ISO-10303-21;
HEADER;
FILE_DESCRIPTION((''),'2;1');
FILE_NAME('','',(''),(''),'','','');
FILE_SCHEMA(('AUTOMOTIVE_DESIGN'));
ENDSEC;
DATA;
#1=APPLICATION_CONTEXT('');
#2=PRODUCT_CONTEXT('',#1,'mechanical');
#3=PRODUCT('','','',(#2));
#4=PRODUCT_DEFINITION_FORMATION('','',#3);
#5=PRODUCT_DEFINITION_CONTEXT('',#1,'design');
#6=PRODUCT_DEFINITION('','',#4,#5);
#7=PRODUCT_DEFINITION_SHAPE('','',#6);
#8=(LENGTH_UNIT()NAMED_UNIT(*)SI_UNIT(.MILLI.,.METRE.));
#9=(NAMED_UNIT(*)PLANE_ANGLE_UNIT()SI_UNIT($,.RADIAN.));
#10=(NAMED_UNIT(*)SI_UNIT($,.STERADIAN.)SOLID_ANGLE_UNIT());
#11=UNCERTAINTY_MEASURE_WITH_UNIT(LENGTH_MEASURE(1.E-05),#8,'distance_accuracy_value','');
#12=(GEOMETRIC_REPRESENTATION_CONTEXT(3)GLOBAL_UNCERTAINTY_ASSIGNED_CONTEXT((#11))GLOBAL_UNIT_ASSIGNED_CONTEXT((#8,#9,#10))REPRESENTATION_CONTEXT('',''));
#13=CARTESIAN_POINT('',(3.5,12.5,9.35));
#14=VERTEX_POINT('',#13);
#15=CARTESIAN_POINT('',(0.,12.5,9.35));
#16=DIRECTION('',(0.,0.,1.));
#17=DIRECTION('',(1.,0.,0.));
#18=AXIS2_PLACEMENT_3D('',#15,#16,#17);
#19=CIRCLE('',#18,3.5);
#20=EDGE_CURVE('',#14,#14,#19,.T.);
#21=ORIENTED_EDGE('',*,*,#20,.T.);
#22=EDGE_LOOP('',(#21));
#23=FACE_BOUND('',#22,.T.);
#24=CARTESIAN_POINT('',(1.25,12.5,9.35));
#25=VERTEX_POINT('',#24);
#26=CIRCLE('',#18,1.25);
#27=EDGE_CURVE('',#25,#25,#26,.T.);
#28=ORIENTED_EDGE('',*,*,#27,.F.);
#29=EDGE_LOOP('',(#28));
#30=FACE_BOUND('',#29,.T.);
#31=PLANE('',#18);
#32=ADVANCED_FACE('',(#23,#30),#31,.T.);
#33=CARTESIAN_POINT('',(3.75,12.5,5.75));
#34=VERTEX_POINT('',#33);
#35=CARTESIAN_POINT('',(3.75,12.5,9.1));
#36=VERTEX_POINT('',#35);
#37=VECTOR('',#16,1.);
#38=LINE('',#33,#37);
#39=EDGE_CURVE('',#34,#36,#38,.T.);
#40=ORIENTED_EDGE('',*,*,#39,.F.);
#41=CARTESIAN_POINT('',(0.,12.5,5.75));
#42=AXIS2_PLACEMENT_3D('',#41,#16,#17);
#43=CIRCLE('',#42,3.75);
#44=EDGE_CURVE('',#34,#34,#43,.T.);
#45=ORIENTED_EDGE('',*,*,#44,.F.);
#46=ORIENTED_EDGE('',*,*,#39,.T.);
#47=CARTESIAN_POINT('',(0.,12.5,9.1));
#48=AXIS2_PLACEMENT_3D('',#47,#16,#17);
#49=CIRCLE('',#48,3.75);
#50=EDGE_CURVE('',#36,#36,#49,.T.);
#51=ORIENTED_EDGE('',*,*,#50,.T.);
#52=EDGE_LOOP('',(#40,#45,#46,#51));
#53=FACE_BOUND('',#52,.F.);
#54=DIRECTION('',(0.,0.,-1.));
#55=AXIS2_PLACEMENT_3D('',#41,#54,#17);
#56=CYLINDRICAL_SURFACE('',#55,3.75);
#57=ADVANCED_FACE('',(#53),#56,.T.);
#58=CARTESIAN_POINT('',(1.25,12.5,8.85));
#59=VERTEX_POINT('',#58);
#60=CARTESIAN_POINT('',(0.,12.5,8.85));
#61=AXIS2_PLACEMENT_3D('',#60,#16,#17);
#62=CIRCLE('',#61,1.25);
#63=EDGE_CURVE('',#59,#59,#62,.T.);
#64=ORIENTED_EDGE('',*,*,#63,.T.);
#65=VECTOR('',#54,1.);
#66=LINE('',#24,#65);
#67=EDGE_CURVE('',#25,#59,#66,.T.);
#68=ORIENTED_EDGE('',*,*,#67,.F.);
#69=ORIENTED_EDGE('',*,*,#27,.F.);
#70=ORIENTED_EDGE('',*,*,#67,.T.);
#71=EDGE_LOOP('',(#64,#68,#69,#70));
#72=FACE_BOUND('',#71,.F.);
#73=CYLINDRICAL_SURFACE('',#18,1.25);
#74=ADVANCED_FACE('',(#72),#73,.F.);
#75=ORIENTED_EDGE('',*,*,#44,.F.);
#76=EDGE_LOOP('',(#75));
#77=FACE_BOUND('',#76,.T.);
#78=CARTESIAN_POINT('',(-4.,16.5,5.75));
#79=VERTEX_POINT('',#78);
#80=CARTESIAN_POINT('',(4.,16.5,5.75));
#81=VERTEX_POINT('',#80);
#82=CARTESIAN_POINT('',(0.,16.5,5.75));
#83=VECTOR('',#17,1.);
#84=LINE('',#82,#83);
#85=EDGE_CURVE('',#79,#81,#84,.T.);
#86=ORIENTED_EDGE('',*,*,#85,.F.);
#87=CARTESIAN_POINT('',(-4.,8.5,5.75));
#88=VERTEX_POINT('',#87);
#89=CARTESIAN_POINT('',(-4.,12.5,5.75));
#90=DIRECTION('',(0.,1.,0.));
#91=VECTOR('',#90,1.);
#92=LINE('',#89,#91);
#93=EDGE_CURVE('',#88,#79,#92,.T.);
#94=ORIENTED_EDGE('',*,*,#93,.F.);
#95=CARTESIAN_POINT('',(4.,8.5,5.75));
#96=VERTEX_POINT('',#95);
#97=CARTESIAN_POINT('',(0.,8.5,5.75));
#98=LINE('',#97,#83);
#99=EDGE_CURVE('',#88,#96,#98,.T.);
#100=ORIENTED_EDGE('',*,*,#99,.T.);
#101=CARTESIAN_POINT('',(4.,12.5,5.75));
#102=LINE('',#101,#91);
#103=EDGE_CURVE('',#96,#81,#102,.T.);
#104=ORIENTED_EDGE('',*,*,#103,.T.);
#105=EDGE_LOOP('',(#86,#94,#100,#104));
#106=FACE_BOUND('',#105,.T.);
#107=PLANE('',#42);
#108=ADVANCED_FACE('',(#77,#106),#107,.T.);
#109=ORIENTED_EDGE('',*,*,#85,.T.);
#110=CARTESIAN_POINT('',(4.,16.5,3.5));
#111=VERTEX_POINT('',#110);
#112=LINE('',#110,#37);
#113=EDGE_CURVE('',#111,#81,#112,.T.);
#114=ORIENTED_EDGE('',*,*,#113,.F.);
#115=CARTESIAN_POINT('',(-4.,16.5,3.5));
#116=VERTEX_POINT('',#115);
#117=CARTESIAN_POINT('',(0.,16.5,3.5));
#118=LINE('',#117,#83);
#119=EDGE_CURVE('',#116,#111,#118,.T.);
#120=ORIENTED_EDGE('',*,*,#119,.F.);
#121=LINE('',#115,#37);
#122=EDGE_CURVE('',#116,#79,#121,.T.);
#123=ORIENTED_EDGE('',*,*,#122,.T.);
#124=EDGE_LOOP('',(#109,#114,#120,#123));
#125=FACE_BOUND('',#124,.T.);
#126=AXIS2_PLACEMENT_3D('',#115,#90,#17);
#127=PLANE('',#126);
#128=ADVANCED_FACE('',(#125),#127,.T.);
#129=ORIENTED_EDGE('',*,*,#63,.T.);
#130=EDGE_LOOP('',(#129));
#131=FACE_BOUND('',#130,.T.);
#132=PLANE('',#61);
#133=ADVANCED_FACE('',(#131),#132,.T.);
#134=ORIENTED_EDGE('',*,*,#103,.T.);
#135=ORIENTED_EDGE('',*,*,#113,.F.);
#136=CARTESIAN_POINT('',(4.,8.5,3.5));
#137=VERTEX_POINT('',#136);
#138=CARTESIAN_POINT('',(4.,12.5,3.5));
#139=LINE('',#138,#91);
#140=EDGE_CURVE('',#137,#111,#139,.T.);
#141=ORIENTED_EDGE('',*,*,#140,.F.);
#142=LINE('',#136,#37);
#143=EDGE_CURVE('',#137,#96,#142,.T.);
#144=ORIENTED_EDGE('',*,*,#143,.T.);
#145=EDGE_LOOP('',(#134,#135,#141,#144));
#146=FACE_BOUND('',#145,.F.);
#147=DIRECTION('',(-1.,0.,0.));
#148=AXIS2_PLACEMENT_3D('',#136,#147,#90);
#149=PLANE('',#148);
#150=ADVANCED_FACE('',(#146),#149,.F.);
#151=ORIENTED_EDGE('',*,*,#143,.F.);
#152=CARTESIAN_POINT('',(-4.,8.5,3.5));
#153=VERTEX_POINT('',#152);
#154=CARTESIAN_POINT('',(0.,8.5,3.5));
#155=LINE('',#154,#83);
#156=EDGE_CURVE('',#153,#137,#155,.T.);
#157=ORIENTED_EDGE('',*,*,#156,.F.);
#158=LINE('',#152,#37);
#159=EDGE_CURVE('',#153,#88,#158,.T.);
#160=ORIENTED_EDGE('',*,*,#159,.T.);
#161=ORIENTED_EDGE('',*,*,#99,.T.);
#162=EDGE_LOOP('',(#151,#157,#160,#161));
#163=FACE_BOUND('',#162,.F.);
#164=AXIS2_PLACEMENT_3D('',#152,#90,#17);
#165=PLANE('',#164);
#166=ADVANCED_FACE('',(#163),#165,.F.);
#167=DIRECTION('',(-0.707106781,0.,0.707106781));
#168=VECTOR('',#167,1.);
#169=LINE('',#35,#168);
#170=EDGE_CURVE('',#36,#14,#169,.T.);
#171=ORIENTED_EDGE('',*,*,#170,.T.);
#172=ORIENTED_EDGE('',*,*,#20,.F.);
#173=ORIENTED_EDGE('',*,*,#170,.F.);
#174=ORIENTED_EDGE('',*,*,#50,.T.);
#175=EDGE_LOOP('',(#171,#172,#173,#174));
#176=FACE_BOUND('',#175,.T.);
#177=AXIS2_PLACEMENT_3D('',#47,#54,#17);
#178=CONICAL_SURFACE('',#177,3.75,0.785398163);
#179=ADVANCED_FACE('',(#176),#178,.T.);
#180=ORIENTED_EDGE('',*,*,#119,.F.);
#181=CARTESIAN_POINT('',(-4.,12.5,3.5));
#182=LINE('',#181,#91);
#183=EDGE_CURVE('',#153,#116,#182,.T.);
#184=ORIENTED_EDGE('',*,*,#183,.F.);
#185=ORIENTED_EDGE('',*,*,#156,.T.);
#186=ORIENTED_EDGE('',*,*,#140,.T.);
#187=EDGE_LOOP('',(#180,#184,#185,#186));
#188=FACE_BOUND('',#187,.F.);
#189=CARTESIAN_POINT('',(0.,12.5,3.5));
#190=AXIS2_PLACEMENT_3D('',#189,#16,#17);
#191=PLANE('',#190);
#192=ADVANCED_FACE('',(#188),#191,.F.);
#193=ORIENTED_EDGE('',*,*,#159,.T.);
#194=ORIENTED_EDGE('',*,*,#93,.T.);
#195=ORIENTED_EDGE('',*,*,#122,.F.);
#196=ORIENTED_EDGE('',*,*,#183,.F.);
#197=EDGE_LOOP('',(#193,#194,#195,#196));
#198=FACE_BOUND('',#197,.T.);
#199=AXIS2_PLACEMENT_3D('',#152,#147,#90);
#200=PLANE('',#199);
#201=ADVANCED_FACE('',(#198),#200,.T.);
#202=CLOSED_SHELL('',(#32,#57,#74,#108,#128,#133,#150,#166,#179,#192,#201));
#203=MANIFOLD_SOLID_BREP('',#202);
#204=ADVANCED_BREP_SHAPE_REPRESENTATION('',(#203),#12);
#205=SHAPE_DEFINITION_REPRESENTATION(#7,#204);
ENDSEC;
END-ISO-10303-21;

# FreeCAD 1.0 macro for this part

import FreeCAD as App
import Part
import Sketcher

V = App.Vector


def edges_at(feature, points):
    """Names of the edges that pass closest to the given points."""
    edges = feature.Shape.Edges
    near = lambda p: min(range(len(edges)), key=lambda i: edges[i].distToShape(Part.Vertex(*p))[0])
    return sorted({f"Edge{near(p) + 1}" for p in points})

doc = App.newDocument("Part")
body = doc.addObject("PartDesign::Body", "Body")

# Sketch on XY plane
sketch1 = body.newObject("Sketcher::SketchObject", "Sketch")
sketch1.AttachmentSupport = (doc.getObject("XY_Plane"), [""])
sketch1.MapMode = "FlatFace"
sketch1.AttachmentOffset = App.Placement(V(0, 0, 3.5), App.Rotation())
sketch1.addGeometry([
    Part.LineSegment(V(-4, 16, 0), V(-4, 8, 0)),
    Part.LineSegment(V(-4, 8, 0), V(4, 8, 0)),
    Part.LineSegment(V(4, 8, 0), V(4, 16, 0)),
    Part.LineSegment(V(4, 16, 0), V(-4, 16, 0)),
], False)
sketch1.addConstraint([
    Sketcher.Constraint("Coincident", 0, 2, 1, 1),
    Sketcher.Constraint("Coincident", 1, 2, 2, 1),
    Sketcher.Constraint("Coincident", 2, 2, 3, 1),
    Sketcher.Constraint("Coincident", 3, 2, 0, 1),
    Sketcher.Constraint("Vertical", 0),
    Sketcher.Constraint("Horizontal", 1),
    Sketcher.Constraint("Vertical", 2),
    Sketcher.Constraint("Horizontal", 3),
    Sketcher.Constraint("Equal", 3, 0),
    Sketcher.Constraint("DistanceX", 1, 1, 1, 2, 8.0),
    Sketcher.Constraint("DistanceX", 0, 2, -1, 1, 4.0),
    Sketcher.Constraint("DistanceY", -1, 1, 0, 2, 8.5),
])
pad1 = body.newObject("PartDesign::Pad", "Pad")
pad1.Profile = sketch1
pad1.Length = 2.25

# Sketch on XY plane
sketch2 = body.newObject("Sketcher::SketchObject", "Sketch001")
sketch2.AttachmentSupport = (doc.getObject("XY_Plane"), [""])
sketch2.MapMode = "FlatFace"
sketch2.AttachmentOffset = App.Placement(V(0, 0, 5.75), App.Rotation())
sketch2.addGeometry(Part.Circle(V(0, 12.5, 0), V(0, 0, 1), 3.8), False)
sketch2.addConstraint([
    Sketcher.Constraint("PointOnObject", 0, 3, -2),
    Sketcher.Constraint("Diameter", 0, 7.5),
    Sketcher.Constraint("DistanceY", -1, 1, 0, 3, 12.5),
])
pad2 = body.newObject("PartDesign::Pad", "Pad001")
pad2.Profile = sketch2
pad2.Length = 3.6

# Sketch on XY plane
sketch3 = body.newObject("Sketcher::SketchObject", "Sketch002")
sketch3.AttachmentSupport = (doc.getObject("XY_Plane"), [""])
sketch3.MapMode = "FlatFace"
sketch3.AttachmentOffset = App.Placement(V(0, 0, 9.35), App.Rotation())
sketch3.addGeometry(Part.Circle(V(0, 12.5, 0), V(0, 0, 1), 1.2), False)
sketch3.addConstraint([
    Sketcher.Constraint("PointOnObject", 0, 3, -2),
    Sketcher.Constraint("Diameter", 0, 2.5),
    Sketcher.Constraint("DistanceY", -1, 1, 0, 3, 12.5),
])
pocket1 = body.newObject("PartDesign::Pocket", "Pocket")
pocket1.Profile = sketch3
pocket1.Length = 0.5
doc.recompute()

chamfer = body.newObject("PartDesign::Chamfer", "Chamfer")
chamfer.Base = (pocket1, edges_at(pocket1, [(-3.75, 12.5, 9.35)]))
chamfer.Size = 0.25

doc.recompute()
